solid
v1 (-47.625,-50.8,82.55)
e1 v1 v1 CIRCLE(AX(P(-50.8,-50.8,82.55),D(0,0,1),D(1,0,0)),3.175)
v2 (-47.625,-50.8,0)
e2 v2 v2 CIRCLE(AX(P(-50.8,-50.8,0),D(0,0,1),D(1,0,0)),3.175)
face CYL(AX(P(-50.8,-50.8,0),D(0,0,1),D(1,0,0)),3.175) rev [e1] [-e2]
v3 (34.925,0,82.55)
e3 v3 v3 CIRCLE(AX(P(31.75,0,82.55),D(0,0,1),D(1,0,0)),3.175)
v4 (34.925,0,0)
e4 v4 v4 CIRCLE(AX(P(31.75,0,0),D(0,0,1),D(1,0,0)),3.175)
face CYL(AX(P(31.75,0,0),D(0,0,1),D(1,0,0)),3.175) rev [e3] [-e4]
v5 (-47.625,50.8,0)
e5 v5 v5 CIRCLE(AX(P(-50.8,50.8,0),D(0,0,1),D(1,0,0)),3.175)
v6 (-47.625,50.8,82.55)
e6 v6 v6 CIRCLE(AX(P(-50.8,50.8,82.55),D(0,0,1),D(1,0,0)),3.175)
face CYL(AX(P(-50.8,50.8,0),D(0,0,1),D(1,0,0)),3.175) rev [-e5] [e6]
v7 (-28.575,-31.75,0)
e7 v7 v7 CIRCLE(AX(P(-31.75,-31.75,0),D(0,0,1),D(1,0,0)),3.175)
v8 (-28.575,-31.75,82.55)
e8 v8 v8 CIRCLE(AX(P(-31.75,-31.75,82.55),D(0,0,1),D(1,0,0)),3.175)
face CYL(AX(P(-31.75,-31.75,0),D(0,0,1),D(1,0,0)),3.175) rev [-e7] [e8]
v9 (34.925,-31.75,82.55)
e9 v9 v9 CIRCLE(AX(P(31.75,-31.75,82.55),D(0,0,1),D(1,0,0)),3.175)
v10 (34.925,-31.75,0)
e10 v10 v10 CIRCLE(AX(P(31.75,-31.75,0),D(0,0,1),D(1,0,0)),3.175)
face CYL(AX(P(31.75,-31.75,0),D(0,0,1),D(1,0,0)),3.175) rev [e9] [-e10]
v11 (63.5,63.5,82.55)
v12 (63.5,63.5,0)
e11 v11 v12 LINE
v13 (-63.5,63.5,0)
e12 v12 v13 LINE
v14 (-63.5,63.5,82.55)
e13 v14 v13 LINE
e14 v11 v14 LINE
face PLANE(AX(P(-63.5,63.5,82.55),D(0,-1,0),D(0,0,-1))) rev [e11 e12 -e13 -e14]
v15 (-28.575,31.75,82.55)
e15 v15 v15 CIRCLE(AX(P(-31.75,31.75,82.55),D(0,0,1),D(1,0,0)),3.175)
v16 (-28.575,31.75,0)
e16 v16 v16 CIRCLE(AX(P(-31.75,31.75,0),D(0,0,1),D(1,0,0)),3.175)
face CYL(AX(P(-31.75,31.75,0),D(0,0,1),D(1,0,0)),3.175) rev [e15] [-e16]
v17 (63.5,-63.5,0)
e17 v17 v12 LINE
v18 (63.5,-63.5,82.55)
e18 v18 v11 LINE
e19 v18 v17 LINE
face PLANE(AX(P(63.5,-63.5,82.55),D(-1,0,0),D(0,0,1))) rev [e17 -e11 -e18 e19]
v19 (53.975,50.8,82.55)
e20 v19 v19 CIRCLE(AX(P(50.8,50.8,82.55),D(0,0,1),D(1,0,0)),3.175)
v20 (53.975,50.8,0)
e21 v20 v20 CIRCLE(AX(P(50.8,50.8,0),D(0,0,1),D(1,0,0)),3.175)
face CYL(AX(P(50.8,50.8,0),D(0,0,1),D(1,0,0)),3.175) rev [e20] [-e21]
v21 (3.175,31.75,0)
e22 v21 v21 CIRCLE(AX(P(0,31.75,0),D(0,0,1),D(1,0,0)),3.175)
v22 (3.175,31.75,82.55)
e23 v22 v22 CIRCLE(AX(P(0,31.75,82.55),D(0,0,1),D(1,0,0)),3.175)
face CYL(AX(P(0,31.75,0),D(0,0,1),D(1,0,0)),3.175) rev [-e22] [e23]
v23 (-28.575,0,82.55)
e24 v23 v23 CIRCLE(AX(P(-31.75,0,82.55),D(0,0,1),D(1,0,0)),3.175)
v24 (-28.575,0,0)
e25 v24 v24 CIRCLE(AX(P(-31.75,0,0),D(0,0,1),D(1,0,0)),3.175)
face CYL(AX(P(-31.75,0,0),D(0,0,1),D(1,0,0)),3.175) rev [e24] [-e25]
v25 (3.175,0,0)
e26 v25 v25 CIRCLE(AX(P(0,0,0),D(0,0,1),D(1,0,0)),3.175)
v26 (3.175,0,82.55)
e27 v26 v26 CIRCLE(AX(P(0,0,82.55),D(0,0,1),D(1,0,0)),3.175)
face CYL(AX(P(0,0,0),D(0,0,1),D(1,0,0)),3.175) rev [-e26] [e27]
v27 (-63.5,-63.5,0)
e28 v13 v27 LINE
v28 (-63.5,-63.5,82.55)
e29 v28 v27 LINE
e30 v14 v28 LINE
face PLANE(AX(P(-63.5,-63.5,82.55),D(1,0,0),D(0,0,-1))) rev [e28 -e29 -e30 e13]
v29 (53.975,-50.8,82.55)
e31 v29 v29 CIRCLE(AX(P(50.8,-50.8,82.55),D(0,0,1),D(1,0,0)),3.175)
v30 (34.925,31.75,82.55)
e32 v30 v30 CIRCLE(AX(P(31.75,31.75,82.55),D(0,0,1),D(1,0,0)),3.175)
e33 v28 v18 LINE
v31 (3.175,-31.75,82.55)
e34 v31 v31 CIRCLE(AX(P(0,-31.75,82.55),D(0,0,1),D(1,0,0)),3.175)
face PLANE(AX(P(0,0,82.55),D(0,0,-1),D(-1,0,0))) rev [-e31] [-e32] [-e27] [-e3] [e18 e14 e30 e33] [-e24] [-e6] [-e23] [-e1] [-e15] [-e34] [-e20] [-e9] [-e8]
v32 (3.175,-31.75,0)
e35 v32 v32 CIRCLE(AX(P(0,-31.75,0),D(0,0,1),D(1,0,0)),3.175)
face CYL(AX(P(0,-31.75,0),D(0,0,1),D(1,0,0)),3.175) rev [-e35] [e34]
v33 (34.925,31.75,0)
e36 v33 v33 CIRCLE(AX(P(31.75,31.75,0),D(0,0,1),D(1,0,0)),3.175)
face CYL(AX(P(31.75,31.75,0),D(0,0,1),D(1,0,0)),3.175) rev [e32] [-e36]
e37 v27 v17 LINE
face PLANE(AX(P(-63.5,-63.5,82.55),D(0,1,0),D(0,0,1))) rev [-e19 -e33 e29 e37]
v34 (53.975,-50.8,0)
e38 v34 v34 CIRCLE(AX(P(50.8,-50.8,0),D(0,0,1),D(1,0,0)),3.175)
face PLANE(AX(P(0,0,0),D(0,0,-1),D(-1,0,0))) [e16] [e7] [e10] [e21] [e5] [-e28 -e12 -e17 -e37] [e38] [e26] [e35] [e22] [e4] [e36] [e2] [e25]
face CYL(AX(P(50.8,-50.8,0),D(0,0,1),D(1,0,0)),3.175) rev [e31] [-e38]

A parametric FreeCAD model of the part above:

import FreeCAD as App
import Part
import Sketcher

V = App.Vector
Q = App.Units.Quantity

doc = App.newDocument("Part")
params = doc.addObject("Spreadsheet::Sheet", "Params")
for row, (alias, value) in enumerate([
    ("sketch1_width", "5 in"),
    ("pad1_length", "3.25 in"),
    ("sketch2_diameter", "0.25 in"),
    ("linearpattern_pitch", "1.25 in"),
    ("linearpattern2_pitch", "1.25 in"),
    ("linearpattern3_pitch", "1.25 in"),
    ("sketch3_diameter", "0.25 in"),
    ("sketch4_diameter", "0.25 in"),
    ("linearpattern4_pitch", "1.25 in"),
    ("sketch5_diameter", "0.25 in"),
    ("sketch6_diameter", "0.25 in"),
    ("sketch7_diameter", "0.25 in"),
], start=1):
    params.set(f"A{row}", alias)
    params.set(f"B{row}", "=" + value)
    params.setAlias(f"B{row}", alias)

body = doc.addObject("PartDesign::Body", "Body")

# Sketch on XY plane
sketch1 = body.newObject("Sketcher::SketchObject", "Sketch")
sketch1.AttachmentSupport = (doc.getObject("XY_Plane"), [""])
sketch1.MapMode = "FlatFace"
sketch1.addGeometry([
    Part.LineSegment(V(-64, 64, 0), V(-64, -64, 0)),
    Part.LineSegment(V(-64, -64, 0), V(64, -64, 0)),
    Part.LineSegment(V(64, -64, 0), V(64, 64, 0)),
    Part.LineSegment(V(64, 64, 0), V(-64, 64, 0)),
], False)
sketch1.addConstraint([
    Sketcher.Constraint("Coincident", 0, 2, 1, 1),
    Sketcher.Constraint("Coincident", 1, 2, 2, 1),
    Sketcher.Constraint("Coincident", 2, 2, 3, 1),
    Sketcher.Constraint("Coincident", 3, 2, 0, 1),
    Sketcher.Constraint("Vertical", 0),
    Sketcher.Constraint("Horizontal", 1),
    Sketcher.Constraint("Vertical", 2),
    Sketcher.Constraint("Horizontal", 3),
    Sketcher.Constraint("Symmetric", 0, 2, 2, 2, -1, 1),
    Sketcher.Constraint("Equal", 3, 0),
    Sketcher.Constraint("DistanceX", 1, 1, 1, 2, Q("5 in")),
])
sketch1.setExpression("Constraints[10]", "Params.sketch1_width")
pad1 = body.newObject("PartDesign::Pad", "Pad")
pad1.Profile = sketch1
pad1.setExpression("Length", "Params.pad1_length")

# Sketch on XY plane
sketch2 = body.newObject("Sketcher::SketchObject", "Sketch001")
sketch2.AttachmentSupport = (doc.getObject("XY_Plane"), [""])
sketch2.MapMode = "FlatFace"
sketch2.AttachmentOffset = App.Placement(V(0, 0, 3.25 * 25.4), App.Rotation())
sketch2.addGeometry(Part.Circle(V(0, 0, 0), V(0, 0, 1), 3.2), False)
sketch2.addConstraint([
    Sketcher.Constraint("Coincident", 0, 3, -1, 1),
    Sketcher.Constraint("Diameter", 0, Q("0.25 in")),
])
sketch2.setExpression("Constraints[1]", "Params.sketch2_diameter")
pocket1 = body.newObject("PartDesign::Pocket", "Pocket")
pocket1.Profile = sketch2
pocket1.Type = "ThroughAll"
doc.recompute()

linearpattern = body.newObject("PartDesign::LinearPattern", "LinearPattern")
linearpattern.Originals = [pocket1]
linearpattern.Direction = (doc.getObject("X_Axis"), [""])
linearpattern.Mode = "offset"
linearpattern.setExpression("Offset", "Params.linearpattern_pitch")
linearpattern.Occurrences = 2
linearpattern.Reversed = True
body.Tip = linearpattern
doc.recompute()

linearpattern2 = body.newObject("PartDesign::LinearPattern", "LinearPattern001")
linearpattern2.Originals = [pocket1]
linearpattern2.Direction = (doc.getObject("X_Axis"), [""])
linearpattern2.Mode = "offset"
linearpattern2.setExpression("Offset", "Params.linearpattern2_pitch")
linearpattern2.Occurrences = 2
body.Tip = linearpattern2
doc.recompute()

linearpattern3 = body.newObject("PartDesign::LinearPattern", "LinearPattern002")
linearpattern3.Originals = [pocket1]
linearpattern3.Direction = (doc.getObject("Y_Axis"), [""])
linearpattern3.Mode = "offset"
linearpattern3.setExpression("Offset", "Params.linearpattern3_pitch")
linearpattern3.Occurrences = 2
linearpattern3.Reversed = True
body.Tip = linearpattern3

# Sketch on XY plane
sketch3 = body.newObject("Sketcher::SketchObject", "Sketch002")
sketch3.AttachmentSupport = (doc.getObject("XY_Plane"), [""])
sketch3.MapMode = "FlatFace"
sketch3.AttachmentOffset = App.Placement(V(0, 0, 3.25 * 25.4), App.Rotation())
sketch3.addGeometry(Part.Circle(V(-31.8, -31.8, 0), V(0, 0, 1), 3.2), False)
sketch3.addConstraint([
    Sketcher.Constraint("Diameter", 0, Q("0.25 in")),
    Sketcher.Constraint("DistanceX", 0, 3, -1, 1, Q("1.25 in")),
    Sketcher.Constraint("DistanceY", 0, 3, -1, 1, Q("1.25 in")),
])
sketch3.setExpression("Constraints[0]", "Params.sketch3_diameter")
pocket2 = body.newObject("PartDesign::Pocket", "Pocket001")
pocket2.Profile = sketch3
pocket2.Type = "ThroughAll"

# Sketch on XY plane
sketch4 = body.newObject("Sketcher::SketchObject", "Sketch003")
sketch4.AttachmentSupport = (doc.getObject("XY_Plane"), [""])
sketch4.MapMode = "FlatFace"
sketch4.AttachmentOffset = App.Placement(V(0, 0, 3.25 * 25.4), App.Rotation())
sketch4.addGeometry(Part.Circle(V(31.8, -31.8, 0), V(0, 0, 1), 3.2), False)
sketch4.addConstraint([
    Sketcher.Constraint("Diameter", 0, Q("0.25 in")),
    Sketcher.Constraint("DistanceX", -1, 1, 0, 3, Q("1.25 in")),
    Sketcher.Constraint("DistanceY", 0, 3, -1, 1, Q("1.25 in")),
])
sketch4.setExpression("Constraints[0]", "Params.sketch4_diameter")
pocket3 = body.newObject("PartDesign::Pocket", "Pocket002")
pocket3.Profile = sketch4
pocket3.Type = "ThroughAll"
doc.recompute()

linearpattern4 = body.newObject("PartDesign::LinearPattern", "LinearPattern003")
linearpattern4.Originals = [pocket1]
linearpattern4.Direction = (doc.getObject("Y_Axis"), [""])
linearpattern4.Mode = "offset"
linearpattern4.setExpression("Offset", "Params.linearpattern4_pitch")
linearpattern4.Occurrences = 2
body.Tip = linearpattern4

# Sketch on XY plane
sketch5 = body.newObject("Sketcher::SketchObject", "Sketch004")
sketch5.AttachmentSupport = (doc.getObject("XY_Plane"), [""])
sketch5.MapMode = "FlatFace"
sketch5.AttachmentOffset = App.Placement(V(0, 0, 3.25 * 25.4), App.Rotation())
sketch5.addGeometry(Part.Circle(V(-31.8, 31.8, 0), V(0, 0, 1), 3.2), False)
sketch5.addConstraint([
    Sketcher.Constraint("Diameter", 0, Q("0.25 in")),
    Sketcher.Constraint("DistanceX", 0, 3, -1, 1, Q("1.25 in")),
    Sketcher.Constraint("DistanceY", -1, 1, 0, 3, Q("1.25 in")),
])
sketch5.setExpression("Constraints[0]", "Params.sketch5_diameter")
pocket4 = body.newObject("PartDesign::Pocket", "Pocket003")
pocket4.Profile = sketch5
pocket4.Type = "ThroughAll"

# Sketch on XY plane
sketch6 = body.newObject("Sketcher::SketchObject", "Sketch005")
sketch6.AttachmentSupport = (doc.getObject("XY_Plane"), [""])
sketch6.MapMode = "FlatFace"
sketch6.AttachmentOffset = App.Placement(V(0, 0, 3.25 * 25.4), App.Rotation())
sketch6.addGeometry(Part.Circle(V(31.8, 31.8, 0), V(0, 0, 1), 3.2), False)
sketch6.addConstraint([
    Sketcher.Constraint("Diameter", 0, Q("0.25 in")),
    Sketcher.Constraint("DistanceX", -1, 1, 0, 3, Q("1.25 in")),
    Sketcher.Constraint("DistanceY", -1, 1, 0, 3, Q("1.25 in")),
])
sketch6.setExpression("Constraints[0]", "Params.sketch6_diameter")
pocket5 = body.newObject("PartDesign::Pocket", "Pocket004")
pocket5.Profile = sketch6
pocket5.Type = "ThroughAll"

# Sketch on XY plane
sketch7 = body.newObject("Sketcher::SketchObject", "Sketch006")
sketch7.AttachmentSupport = (doc.getObject("XY_Plane"), [""])
sketch7.MapMode = "FlatFace"
sketch7.AttachmentOffset = App.Placement(V(0, 0, 3.25 * 25.4), App.Rotation())
sketch7.addGeometry([
    Part.Circle(V(-50.8, 50.8, 0), V(0, 0, 1), 3.2),
    Part.Circle(V(50.8, 50.8, 0), V(0, 0, 1), 3.2),
    Part.Circle(V(50.8, -50.8, 0), V(0, 0, 1), 3.2),
    Part.Circle(V(-50.8, -50.8, 0), V(0, 0, 1), 3.2),
], False)
sketch7.addConstraint([
    Sketcher.Constraint("Equal", 0, 1),
    Sketcher.Constraint("Equal", 1, 2),
    Sketcher.Constraint("Equal", 2, 3),
    Sketcher.Constraint("Symmetric", 0, 3, 2, 3, -1, 1),
    Sketcher.Constraint("Symmetric", 1, 3, 3, 3, -1, 1),
    Sketcher.Constraint("Symmetric", 0, 3, 1, 3, -2),
    Sketcher.Constraint("Diameter", 0, Q("0.25 in")),
    Sketcher.Constraint("DistanceX", 0, 3, -1, 1, Q("2 in")),
    Sketcher.Constraint("DistanceY", -1, 1, 0, 3, Q("2 in")),
])
sketch7.setExpression("Constraints[6]", "Params.sketch7_diameter")
pocket6 = body.newObject("PartDesign::Pocket", "Pocket005")
pocket6.Profile = sketch7
pocket6.Type = "ThroughAll"

doc.recompute()
